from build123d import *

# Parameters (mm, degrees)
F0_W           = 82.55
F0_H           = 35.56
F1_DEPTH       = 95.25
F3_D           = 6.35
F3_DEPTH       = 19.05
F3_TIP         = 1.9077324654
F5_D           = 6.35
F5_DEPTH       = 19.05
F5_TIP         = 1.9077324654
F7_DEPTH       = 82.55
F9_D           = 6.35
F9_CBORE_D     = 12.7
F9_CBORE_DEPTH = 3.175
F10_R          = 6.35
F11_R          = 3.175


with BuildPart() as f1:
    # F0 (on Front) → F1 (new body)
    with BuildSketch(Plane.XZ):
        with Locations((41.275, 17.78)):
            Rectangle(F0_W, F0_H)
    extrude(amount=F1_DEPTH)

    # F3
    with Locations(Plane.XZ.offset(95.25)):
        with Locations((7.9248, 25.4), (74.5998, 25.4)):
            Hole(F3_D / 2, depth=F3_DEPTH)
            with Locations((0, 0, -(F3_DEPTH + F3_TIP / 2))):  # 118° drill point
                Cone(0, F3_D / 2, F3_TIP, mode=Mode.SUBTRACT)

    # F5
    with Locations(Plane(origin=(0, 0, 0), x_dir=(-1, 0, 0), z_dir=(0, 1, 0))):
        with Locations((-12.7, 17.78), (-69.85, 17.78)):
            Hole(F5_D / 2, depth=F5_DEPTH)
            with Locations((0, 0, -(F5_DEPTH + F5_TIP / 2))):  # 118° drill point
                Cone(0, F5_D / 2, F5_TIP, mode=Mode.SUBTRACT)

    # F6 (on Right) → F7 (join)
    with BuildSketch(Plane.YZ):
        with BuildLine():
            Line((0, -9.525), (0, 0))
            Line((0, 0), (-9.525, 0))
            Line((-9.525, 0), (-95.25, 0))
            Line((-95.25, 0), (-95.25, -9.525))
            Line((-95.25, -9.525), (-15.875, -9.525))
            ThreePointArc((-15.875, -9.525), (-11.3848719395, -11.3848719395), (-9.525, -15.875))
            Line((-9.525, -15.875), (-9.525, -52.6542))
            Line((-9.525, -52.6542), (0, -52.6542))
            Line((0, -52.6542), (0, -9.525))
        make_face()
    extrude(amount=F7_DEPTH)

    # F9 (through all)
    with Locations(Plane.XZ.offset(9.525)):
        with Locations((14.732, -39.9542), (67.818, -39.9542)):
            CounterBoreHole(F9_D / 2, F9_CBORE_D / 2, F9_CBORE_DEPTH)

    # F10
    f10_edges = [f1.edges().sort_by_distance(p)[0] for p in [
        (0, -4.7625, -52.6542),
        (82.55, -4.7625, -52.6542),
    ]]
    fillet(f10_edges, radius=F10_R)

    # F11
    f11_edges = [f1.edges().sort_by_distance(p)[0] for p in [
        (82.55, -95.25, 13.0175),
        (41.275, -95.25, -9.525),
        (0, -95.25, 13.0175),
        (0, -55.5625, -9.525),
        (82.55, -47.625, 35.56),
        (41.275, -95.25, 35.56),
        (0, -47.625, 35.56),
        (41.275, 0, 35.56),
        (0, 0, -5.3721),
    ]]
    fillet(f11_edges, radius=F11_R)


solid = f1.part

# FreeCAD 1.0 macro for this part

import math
import FreeCAD as App
import Part
import Sketcher
from FreeCAD import Vector
Q = App.Units.Quantity


def edges_at(feature, points):
    """Names of the edges that pass closest to the given points."""
    edges = feature.Shape.Edges
    near = lambda p: min(range(len(edges)), key=lambda i: edges[i].distToShape(Part.Vertex(*p))[0])
    return sorted({f"Edge{near(p) + 1}" for p in points})


def add_polygon(sketch, points):
    """Adds a closed chain of lines whose ends are joined by coincident constraints."""
    first, n = sketch.GeometryCount, len(points)
    for a, b in zip(points, points[1:] + points[:1]):
        sketch.addGeometry(Part.LineSegment(App.Vector(*a, 0), App.Vector(*b, 0)), False)
    for i in range(n):
        sketch.addConstraint(Sketcher.Constraint("Coincident", first + i, 2, first + (i + 1) % n, 1))

doc = App.newDocument("Part")
body = doc.addObject("PartDesign::Body", "Body")

# Sketch on XZ plane
sketch1 = body.newObject("Sketcher::SketchObject", "Sketch")
sketch1.AttachmentSupport = (doc.getObject("XZ_Plane"), [""])
sketch1.MapMode = "FlatFace"
add_polygon(sketch1, [(0, 36), (0, 0), (83, 0), (83, 36)])  # lines 0-3
sketch1.addConstraint([
    Sketcher.Constraint("Vertical", 0),
    Sketcher.Constraint("Horizontal", 1),
    Sketcher.Constraint("Vertical", 2),
    Sketcher.Constraint("Horizontal", 3),
    Sketcher.Constraint("Coincident", 0, 2, -1, 1),
    Sketcher.Constraint("DistanceY", 0, 2, 0, 1, Q("1.4 in")),
    Sketcher.Constraint("DistanceX", 1, 1, 1, 2, Q("3.25 in")),
])
pad1 = body.newObject("PartDesign::Pad", "Pad")
pad1.Profile = sketch1
pad1.Length = Q("3.75 in")

# Sketch on XZ plane
sketch2 = body.newObject("Sketcher::SketchObject", "Sketch001")
sketch2.AttachmentSupport = (doc.getObject("XZ_Plane"), [""])
sketch2.MapMode = "FlatFace"
sketch2.AttachmentOffset = App.Placement(Vector(0, 0, 3.75 * 25.4), App.Rotation())
sketch2.addGeometry([
    Part.Circle(Vector(7.9, 25.4, 0), Vector(0, 0, 1), 3.2),
    Part.Circle(Vector(74.6, 25.4, 0), Vector(0, 0, 1), 3.2),
], False)
sketch2.addConstraint([
    Sketcher.Constraint("Equal", 0, 1),
    Sketcher.Constraint("Horizontal", 0, 3, 1, 3),
    Sketcher.Constraint("Diameter", 0, Q("0.25 in")),
    Sketcher.Constraint("DistanceY", -1, 1, 0, 3, Q("1 in")),
    Sketcher.Constraint("DistanceX", -1, 1, 0, 3, Q("0.312 in")),
    Sketcher.Constraint("DistanceX", -1, 1, 1, 3, Q("2.937 in")),
])
doc.recompute()
hole = body.newObject("PartDesign::Hole", "Hole")
hole.Profile = sketch2
hole.ThreadType = "None"
hole.Diameter = Q("0.25 in")
hole.DepthType = "Dimension"
hole.Depth = Q("0.75 in")
hole.DrillPoint = "Angled"
hole.DrillPointAngle = 118

# Sketch on XZ plane
sketch3 = body.newObject("Sketcher::SketchObject", "Sketch002")
sketch3.AttachmentSupport = (doc.getObject("XZ_Plane"), [""])
sketch3.MapMode = "FlatFace"
sketch3.addGeometry([
    Part.Circle(Vector(12.7, 17.8, 0), Vector(0, 0, 1), 3.2),
    Part.Circle(Vector(69.8, 17.8, 0), Vector(0, 0, 1), 3.2),
], False)
sketch3.addConstraint([
    Sketcher.Constraint("Equal", 0, 1),
    Sketcher.Constraint("Horizontal", 0, 3, 1, 3),
    Sketcher.Constraint("Diameter", 0, Q("0.25 in")),
    Sketcher.Constraint("DistanceX", -1, 1, 0, 3, Q("0.5 in")),
    Sketcher.Constraint("DistanceY", -1, 1, 0, 3, Q("0.7 in")),
    Sketcher.Constraint("DistanceX", -1, 1, 1, 3, Q("2.75 in")),
])
doc.recompute()
hole2 = body.newObject("PartDesign::Hole", "Hole001")
hole2.Profile = sketch3
hole2.ThreadType = "None"
hole2.Diameter = Q("0.25 in")
hole2.DepthType = "Dimension"
hole2.Depth = Q("0.75 in")
hole2.DrillPoint = "Angled"
hole2.DrillPointAngle = 118
hole2.Reversed = True

# Sketch on YZ plane
sketch4 = body.newObject("Sketcher::SketchObject", "Sketch003")
sketch4.AttachmentSupport = (doc.getObject("YZ_Plane"), [""])
sketch4.MapMode = "FlatFace"
sketch4.addGeometry([
    Part.LineSegment(Vector(0, 0, 0), Vector(-95, 0, 0)),  # 0
    Part.LineSegment(Vector(-95, 0, 0), Vector(-95, -10, 0)),  # 1
    Part.LineSegment(Vector(-95, -10, 0), Vector(-16, -10, 0)),  # 2
    Part.ArcOfCircle(Part.Circle(Vector(-16, -16, 0), Vector(0, 0, 1), 6), math.radians(0), math.radians(90)),  # 3
    Part.LineSegment(Vector(-10, -16, 0), Vector(-10, -53, 0)),  # 4
    Part.LineSegment(Vector(-10, -53, 0), Vector(0, -53, 0)),  # 5
    Part.LineSegment(Vector(0, -53, 0), Vector(0, 0, 0)),  # 6
], False)
sketch4.addConstraint([
    Sketcher.Constraint("Coincident", 0, 2, 1, 1),
    Sketcher.Constraint("Coincident", 1, 2, 2, 1),
    Sketcher.Constraint("Tangent", 2, 2, 3, 2),
    Sketcher.Constraint("Tangent", 3, 1, 4, 1),
    Sketcher.Constraint("Coincident", 4, 2, 5, 1),
    Sketcher.Constraint("Coincident", 5, 2, 6, 1),
    Sketcher.Constraint("Coincident", 6, 2, 0, 1),
    Sketcher.Constraint("Horizontal", 0),
    Sketcher.Constraint("Vertical", 1),
    Sketcher.Constraint("Horizontal", 2),
    Sketcher.Constraint("Vertical", 4),
    Sketcher.Constraint("Horizontal", 5),
    Sketcher.Constraint("Vertical", 6),
    Sketcher.Constraint("Coincident", 6, 2, -1, 1),
    Sketcher.Constraint("Equal", 5, 1),
    Sketcher.Constraint("Radius", 3, Q("0.25 in")),
    Sketcher.Constraint("DistanceX", 0, 2, 0, 1, Q("3.75 in")),
    Sketcher.Constraint("DistanceX", 2, 1, 2, 2, Q("3.125 in")),
    Sketcher.Constraint("DistanceY", 4, 2, 4, 1, Q("1.448 in")),
])
pad2 = body.newObject("PartDesign::Pad", "Pad001")
pad2.Profile = sketch4
pad2.Length = Q("3.25 in")

# Sketch on XZ plane
sketch5 = body.newObject("Sketcher::SketchObject", "Sketch004")
sketch5.AttachmentSupport = (doc.getObject("XZ_Plane"), [""])
sketch5.MapMode = "FlatFace"
sketch5.AttachmentOffset = App.Placement(Vector(0, 0, 0.375 * 25.4), App.Rotation())
sketch5.addGeometry([
    Part.Circle(Vector(14.7, -40, 0), Vector(0, 0, 1), 3.2),
    Part.Circle(Vector(67.8, -40, 0), Vector(0, 0, 1), 3.2),
], False)
sketch5.addConstraint([
    Sketcher.Constraint("Equal", 0, 1),
    Sketcher.Constraint("Horizontal", 0, 3, 1, 3),
    Sketcher.Constraint("Diameter", 0, Q("0.25 in")),
    Sketcher.Constraint("DistanceX", -1, 1, 0, 3, Q("0.58 in")),
    Sketcher.Constraint("DistanceX", -1, 1, 1, 3, Q("2.67 in")),
    Sketcher.Constraint("DistanceY", 0, 3, -1, 1, Q("1.573 in")),
])
doc.recompute()
hole3 = body.newObject("PartDesign::Hole", "Hole002")
hole3.Profile = sketch5
hole3.ThreadType = "None"
hole3.Diameter = Q("0.25 in")
hole3.DepthType = "ThroughAll"
hole3.HoleCutType = "Counterbore"
hole3.HoleCutDiameter = Q("0.5 in")
hole3.HoleCutDepth = Q("0.125 in")
doc.recompute()

fillet = body.newObject("PartDesign::Fillet", "Fillet")
fillet.Base = (hole3, edges_at(hole3, [(0, -4.763, -52.654), (82.55, -4.763, -52.654)]))
fillet.Radius = Q("0.25 in")
doc.recompute()

fillet2 = body.newObject("PartDesign::Fillet", "Fillet001")
fillet2.Base = (fillet, edges_at(fillet, [
    (82.55, -95.25, 13.018),
    (41.275, -95.25, -9.525),
    (0, -95.25, 13.018),
    (0, -55.562, -9.525),
    (82.55, -47.625, 35.56),
    (41.275, -95.25, 35.56),
    (0, -47.625, 35.56),
    (41.275, 0, 35.56),
    (0, 0, -5.372),
]))
fillet2.Radius = Q("0.125 in")

doc.recompute()
